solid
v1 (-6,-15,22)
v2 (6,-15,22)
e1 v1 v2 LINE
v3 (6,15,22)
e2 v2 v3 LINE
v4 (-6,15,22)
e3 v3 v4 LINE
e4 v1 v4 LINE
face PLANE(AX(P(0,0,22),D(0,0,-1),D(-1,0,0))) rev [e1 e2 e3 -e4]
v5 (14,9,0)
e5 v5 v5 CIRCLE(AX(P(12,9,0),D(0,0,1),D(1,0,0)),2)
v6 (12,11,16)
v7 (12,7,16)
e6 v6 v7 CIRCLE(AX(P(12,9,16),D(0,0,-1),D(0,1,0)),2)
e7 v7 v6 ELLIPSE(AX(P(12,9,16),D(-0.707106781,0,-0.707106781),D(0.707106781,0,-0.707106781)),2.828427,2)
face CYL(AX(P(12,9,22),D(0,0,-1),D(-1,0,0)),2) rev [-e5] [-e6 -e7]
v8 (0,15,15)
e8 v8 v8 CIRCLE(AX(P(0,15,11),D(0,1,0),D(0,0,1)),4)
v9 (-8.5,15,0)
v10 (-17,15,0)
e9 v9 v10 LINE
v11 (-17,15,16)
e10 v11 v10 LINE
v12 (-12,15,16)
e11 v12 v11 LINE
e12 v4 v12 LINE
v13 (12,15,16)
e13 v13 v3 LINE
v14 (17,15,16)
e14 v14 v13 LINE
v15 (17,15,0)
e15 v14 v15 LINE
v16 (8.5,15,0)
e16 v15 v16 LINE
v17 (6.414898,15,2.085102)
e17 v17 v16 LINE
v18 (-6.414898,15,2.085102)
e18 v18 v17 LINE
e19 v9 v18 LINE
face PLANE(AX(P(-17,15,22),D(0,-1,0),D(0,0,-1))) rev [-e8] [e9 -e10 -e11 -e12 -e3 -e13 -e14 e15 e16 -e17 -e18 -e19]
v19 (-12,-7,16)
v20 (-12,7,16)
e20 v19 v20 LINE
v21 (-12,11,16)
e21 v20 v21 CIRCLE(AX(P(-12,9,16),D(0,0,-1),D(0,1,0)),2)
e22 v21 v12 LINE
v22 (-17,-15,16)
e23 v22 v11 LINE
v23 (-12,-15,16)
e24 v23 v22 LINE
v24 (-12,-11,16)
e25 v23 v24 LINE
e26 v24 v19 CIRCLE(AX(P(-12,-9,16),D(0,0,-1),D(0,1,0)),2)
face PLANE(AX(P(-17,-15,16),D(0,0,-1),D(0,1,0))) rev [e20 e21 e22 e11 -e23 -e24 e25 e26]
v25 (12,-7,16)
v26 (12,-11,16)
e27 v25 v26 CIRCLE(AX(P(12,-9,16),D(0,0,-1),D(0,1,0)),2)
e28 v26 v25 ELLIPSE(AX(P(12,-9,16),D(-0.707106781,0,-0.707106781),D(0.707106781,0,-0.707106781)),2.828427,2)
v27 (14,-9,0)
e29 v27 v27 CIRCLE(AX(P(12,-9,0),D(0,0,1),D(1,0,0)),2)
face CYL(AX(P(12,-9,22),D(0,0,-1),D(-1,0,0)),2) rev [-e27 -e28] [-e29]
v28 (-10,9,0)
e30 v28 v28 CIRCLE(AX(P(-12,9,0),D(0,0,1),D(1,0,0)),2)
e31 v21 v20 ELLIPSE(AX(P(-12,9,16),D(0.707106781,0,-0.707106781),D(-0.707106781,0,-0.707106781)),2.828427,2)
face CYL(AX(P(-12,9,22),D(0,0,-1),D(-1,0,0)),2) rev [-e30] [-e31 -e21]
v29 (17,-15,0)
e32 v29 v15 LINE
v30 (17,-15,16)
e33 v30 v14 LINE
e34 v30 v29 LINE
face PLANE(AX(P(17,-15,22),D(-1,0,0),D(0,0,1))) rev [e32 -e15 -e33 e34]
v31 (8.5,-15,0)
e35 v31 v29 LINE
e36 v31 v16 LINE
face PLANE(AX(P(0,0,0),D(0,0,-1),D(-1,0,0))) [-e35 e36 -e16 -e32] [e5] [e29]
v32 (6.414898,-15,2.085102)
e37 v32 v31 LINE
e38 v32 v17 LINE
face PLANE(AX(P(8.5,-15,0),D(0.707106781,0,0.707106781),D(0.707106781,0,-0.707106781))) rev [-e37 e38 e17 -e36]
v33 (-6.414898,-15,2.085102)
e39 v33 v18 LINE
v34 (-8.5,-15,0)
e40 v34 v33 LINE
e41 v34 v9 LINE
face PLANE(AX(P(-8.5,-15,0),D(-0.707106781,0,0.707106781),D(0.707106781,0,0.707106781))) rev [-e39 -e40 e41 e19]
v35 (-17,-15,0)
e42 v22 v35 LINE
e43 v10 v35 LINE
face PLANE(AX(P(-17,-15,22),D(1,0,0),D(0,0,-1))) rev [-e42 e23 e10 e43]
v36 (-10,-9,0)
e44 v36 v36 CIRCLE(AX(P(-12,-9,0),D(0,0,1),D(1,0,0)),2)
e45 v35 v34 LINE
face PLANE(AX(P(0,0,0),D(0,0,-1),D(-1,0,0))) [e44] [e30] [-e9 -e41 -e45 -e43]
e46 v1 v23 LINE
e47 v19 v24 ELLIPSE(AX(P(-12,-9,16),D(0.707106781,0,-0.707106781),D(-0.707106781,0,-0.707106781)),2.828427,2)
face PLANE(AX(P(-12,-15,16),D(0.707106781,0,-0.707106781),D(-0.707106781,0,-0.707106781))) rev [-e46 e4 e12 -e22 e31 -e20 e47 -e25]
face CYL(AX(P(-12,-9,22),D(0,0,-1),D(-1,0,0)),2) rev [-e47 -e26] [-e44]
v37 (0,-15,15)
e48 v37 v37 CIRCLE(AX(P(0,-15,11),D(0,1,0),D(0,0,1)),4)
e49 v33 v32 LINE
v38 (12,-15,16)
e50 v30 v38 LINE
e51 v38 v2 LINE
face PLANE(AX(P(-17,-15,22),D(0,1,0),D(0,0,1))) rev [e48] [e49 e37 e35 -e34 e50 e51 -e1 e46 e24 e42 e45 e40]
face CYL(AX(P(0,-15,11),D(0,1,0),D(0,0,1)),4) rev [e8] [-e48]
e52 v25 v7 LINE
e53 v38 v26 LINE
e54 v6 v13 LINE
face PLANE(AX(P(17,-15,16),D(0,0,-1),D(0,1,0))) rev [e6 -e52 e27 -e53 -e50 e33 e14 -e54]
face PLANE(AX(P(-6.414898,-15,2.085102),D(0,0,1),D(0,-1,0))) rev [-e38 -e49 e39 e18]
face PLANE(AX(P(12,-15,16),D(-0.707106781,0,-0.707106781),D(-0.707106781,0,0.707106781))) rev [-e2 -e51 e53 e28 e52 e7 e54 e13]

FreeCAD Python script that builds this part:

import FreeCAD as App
import Part
import Sketcher
from FreeCAD import Vector
Q = App.Units.Quantity

doc = App.newDocument("Part")
params = doc.addObject("Spreadsheet::Sheet", "Params")
for row, (alias, value) in enumerate([
    ("sketch1_diameter", "4 mm"),
    ("sketch1_width", "34 mm"),
    ("sketch1_height", "30 mm"),
    ("pad1_length", "22 mm"),
    ("sketch2_diameter", "8 mm"),
    ("sketch2_width", "5 mm"),
    ("sketch2_width2", "11 mm"),
    ("sketch2_width3", "17 mm"),
    ("pocket1_length", "30 mm"),
], start=1):
    params.set(f"A{row}", alias)
    params.set(f"B{row}", "=" + value)
    params.setAlias(f"B{row}", alias)

body = doc.addObject("PartDesign::Body", "Body")

# Sketch on XY plane
sketch1 = body.newObject("Sketcher::SketchObject", "Sketch")
sketch1.AttachmentSupport = (doc.getObject("XY_Plane"), [""])
sketch1.MapMode = "FlatFace"
sketch1.addGeometry([
    Part.LineSegment(Vector(-17, 15, 0), Vector(-17, -15, 0)),  # 0
    Part.LineSegment(Vector(-17, -15, 0), Vector(17, -15, 0)),  # 1
    Part.LineSegment(Vector(17, -15, 0), Vector(17, 15, 0)),  # 2
    Part.LineSegment(Vector(17, 15, 0), Vector(-17, 15, 0)),  # 3
    Part.Circle(Vector(-12, -9, 0), Vector(0, 0, 1), 2),  # 4
    Part.Circle(Vector(12, -9, 0), Vector(0, 0, 1), 2),  # 5
    Part.Circle(Vector(-12, 9, 0), Vector(0, 0, 1), 2),  # 6
    Part.Circle(Vector(12, 9, 0), Vector(0, 0, 1), 2),  # 7
], False)
sketch1.addConstraint([
    Sketcher.Constraint("Coincident", 0, 2, 1, 1),
    Sketcher.Constraint("Coincident", 1, 2, 2, 1),
    Sketcher.Constraint("Coincident", 2, 2, 3, 1),
    Sketcher.Constraint("Coincident", 3, 2, 0, 1),
    Sketcher.Constraint("Vertical", 0),
    Sketcher.Constraint("Horizontal", 1),
    Sketcher.Constraint("Vertical", 2),
    Sketcher.Constraint("Horizontal", 3),
    Sketcher.Constraint("Equal", 4, 5),
    Sketcher.Constraint("Equal", 5, 6),
    Sketcher.Constraint("Equal", 6, 7),
    Sketcher.Constraint("Symmetric", 5, 3, 6, 3, -1, 1),
    Sketcher.Constraint("Symmetric", 4, 3, 7, 3, -1, 1),
    Sketcher.Constraint("Symmetric", 0, 2, 2, 2, -1, 1),
    Sketcher.Constraint("Symmetric", 4, 3, 5, 3, -2),
    Sketcher.Constraint("Diameter", 4, Q("4 mm")),
    Sketcher.Constraint("DistanceX", 1, 1, 1, 2, Q("34 mm")),
    Sketcher.Constraint("DistanceY", 0, 2, 0, 1, Q("30 mm")),
    Sketcher.Constraint("DistanceX", 4, 3, -1, 1, Q("12 mm")),
    Sketcher.Constraint("DistanceY", 4, 3, -1, 1, Q("9 mm")),
])
sketch1.setExpression("Constraints[15]", "Params.sketch1_diameter")
sketch1.setExpression("Constraints[16]", "Params.sketch1_width")
sketch1.setExpression("Constraints[17]", "Params.sketch1_height")
pad1 = body.newObject("PartDesign::Pad", "Pad")
pad1.Profile = sketch1
pad1.setExpression("Length", "Params.pad1_length")

# Sketch on XZ plane
sketch2 = body.newObject("Sketcher::SketchObject", "Sketch001")
sketch2.AttachmentSupport = (doc.getObject("XZ_Plane"), [""])
sketch2.MapMode = "FlatFace"
sketch2.AttachmentOffset = App.Placement(Vector(0, 0, -15), App.Rotation())
sketch2.addGeometry([
    Part.Circle(Vector(0, 11, 0), Vector(0, 0, 1), 4),  # 0
    Part.LineSegment(Vector(-12, 16, 0), Vector(-17, 16, 0)),  # 1
    Part.LineSegment(Vector(-17, 16, 0), Vector(-17, 22, 0)),  # 2
    Part.LineSegment(Vector(-17, 22, 0), Vector(-6, 22, 0)),  # 3
    Part.LineSegment(Vector(-6, 22, 0), Vector(-12, 16, 0)),  # 4
    Part.LineSegment(Vector(6, 22, 0), Vector(17, 22, 0)),  # 5
    Part.LineSegment(Vector(17, 22, 0), Vector(17, 16, 0)),  # 6
    Part.LineSegment(Vector(17, 16, 0), Vector(12, 16, 0)),  # 7
    Part.LineSegment(Vector(12, 16, 0), Vector(6, 22, 0)),  # 8
    Part.LineSegment(Vector(-8.5, 0, 0), Vector(-6.4, 2.1, 0)),  # 9
    Part.LineSegment(Vector(-6.4, 2.1, 0), Vector(6.4, 2.1, 0)),  # 10
    Part.LineSegment(Vector(6.4, 2.1, 0), Vector(8.5, 0, 0)),  # 11
    Part.LineSegment(Vector(8.5, 0, 0), Vector(-8.5, 0, 0)),  # 12
], False)
sketch2.addConstraint([
    Sketcher.Constraint("Coincident", 1, 2, 2, 1),
    Sketcher.Constraint("Coincident", 2, 2, 3, 1),
    Sketcher.Constraint("Coincident", 3, 2, 4, 1),
    Sketcher.Constraint("Coincident", 4, 2, 1, 1),
    Sketcher.Constraint("Coincident", 5, 2, 6, 1),
    Sketcher.Constraint("Coincident", 6, 2, 7, 1),
    Sketcher.Constraint("Coincident", 7, 2, 8, 1),
    Sketcher.Constraint("Coincident", 8, 2, 5, 1),
    Sketcher.Constraint("Coincident", 9, 2, 10, 1),
    Sketcher.Constraint("Coincident", 10, 2, 11, 1),
    Sketcher.Constraint("Coincident", 11, 2, 12, 1),
    Sketcher.Constraint("Coincident", 12, 2, 9, 1),
    Sketcher.Constraint("Horizontal", 1),
    Sketcher.Constraint("Vertical", 2),
    Sketcher.Constraint("Horizontal", 3),
    Sketcher.Constraint("Horizontal", 5),
    Sketcher.Constraint("Vertical", 6),
    Sketcher.Constraint("Horizontal", 7),
    Sketcher.Constraint("Horizontal", 10),
    Sketcher.Constraint("Horizontal", 12),
    Sketcher.Constraint("Symmetric", 11, 2, 12, 2, -1, 1),
    Sketcher.Constraint("Symmetric", 2, 2, 5, 2, -2),
    Sketcher.Constraint("Symmetric", 4, 2, 7, 2, -2),
    Sketcher.Constraint("PointOnObject", 0, 3, -2),
    Sketcher.Constraint("Perpendicular", 4, 8),
    Sketcher.Constraint("Perpendicular", 8, 9),
    Sketcher.Constraint("Perpendicular", 9, 11),
    Sketcher.Constraint("Equal", 3, 5),
    Sketcher.Constraint("Diameter", 0, Q("8 mm")),
    Sketcher.Constraint("DistanceX", 1, 2, 1, 1, Q("5 mm")),
    Sketcher.Constraint("DistanceX", 3, 1, 3, 2, Q("11 mm")),
    Sketcher.Constraint("DistanceX", 12, 2, 12, 1, Q("17 mm")),
    Sketcher.Constraint("DistanceY", -1, 1, 0, 3, Q("11 mm")),
    Sketcher.Constraint("DistanceX", 1, 2, -1, 1, Q("17 mm")),
    Sketcher.Constraint("DistanceY", -1, 1, 1, 2, Q("16 mm")),
    Sketcher.Constraint("Distance", 9, Q("2.94878 mm")),
])
sketch2.setExpression("Constraints[28]", "Params.sketch2_diameter")
sketch2.setExpression("Constraints[29]", "Params.sketch2_width")
sketch2.setExpression("Constraints[30]", "Params.sketch2_width2")
sketch2.setExpression("Constraints[31]", "Params.sketch2_width3")
pocket1 = body.newObject("PartDesign::Pocket", "Pocket")
pocket1.Profile = sketch2
pocket1.setExpression("Length", "Params.pocket1_length")
pocket1.Reversed = True

doc.recompute()
